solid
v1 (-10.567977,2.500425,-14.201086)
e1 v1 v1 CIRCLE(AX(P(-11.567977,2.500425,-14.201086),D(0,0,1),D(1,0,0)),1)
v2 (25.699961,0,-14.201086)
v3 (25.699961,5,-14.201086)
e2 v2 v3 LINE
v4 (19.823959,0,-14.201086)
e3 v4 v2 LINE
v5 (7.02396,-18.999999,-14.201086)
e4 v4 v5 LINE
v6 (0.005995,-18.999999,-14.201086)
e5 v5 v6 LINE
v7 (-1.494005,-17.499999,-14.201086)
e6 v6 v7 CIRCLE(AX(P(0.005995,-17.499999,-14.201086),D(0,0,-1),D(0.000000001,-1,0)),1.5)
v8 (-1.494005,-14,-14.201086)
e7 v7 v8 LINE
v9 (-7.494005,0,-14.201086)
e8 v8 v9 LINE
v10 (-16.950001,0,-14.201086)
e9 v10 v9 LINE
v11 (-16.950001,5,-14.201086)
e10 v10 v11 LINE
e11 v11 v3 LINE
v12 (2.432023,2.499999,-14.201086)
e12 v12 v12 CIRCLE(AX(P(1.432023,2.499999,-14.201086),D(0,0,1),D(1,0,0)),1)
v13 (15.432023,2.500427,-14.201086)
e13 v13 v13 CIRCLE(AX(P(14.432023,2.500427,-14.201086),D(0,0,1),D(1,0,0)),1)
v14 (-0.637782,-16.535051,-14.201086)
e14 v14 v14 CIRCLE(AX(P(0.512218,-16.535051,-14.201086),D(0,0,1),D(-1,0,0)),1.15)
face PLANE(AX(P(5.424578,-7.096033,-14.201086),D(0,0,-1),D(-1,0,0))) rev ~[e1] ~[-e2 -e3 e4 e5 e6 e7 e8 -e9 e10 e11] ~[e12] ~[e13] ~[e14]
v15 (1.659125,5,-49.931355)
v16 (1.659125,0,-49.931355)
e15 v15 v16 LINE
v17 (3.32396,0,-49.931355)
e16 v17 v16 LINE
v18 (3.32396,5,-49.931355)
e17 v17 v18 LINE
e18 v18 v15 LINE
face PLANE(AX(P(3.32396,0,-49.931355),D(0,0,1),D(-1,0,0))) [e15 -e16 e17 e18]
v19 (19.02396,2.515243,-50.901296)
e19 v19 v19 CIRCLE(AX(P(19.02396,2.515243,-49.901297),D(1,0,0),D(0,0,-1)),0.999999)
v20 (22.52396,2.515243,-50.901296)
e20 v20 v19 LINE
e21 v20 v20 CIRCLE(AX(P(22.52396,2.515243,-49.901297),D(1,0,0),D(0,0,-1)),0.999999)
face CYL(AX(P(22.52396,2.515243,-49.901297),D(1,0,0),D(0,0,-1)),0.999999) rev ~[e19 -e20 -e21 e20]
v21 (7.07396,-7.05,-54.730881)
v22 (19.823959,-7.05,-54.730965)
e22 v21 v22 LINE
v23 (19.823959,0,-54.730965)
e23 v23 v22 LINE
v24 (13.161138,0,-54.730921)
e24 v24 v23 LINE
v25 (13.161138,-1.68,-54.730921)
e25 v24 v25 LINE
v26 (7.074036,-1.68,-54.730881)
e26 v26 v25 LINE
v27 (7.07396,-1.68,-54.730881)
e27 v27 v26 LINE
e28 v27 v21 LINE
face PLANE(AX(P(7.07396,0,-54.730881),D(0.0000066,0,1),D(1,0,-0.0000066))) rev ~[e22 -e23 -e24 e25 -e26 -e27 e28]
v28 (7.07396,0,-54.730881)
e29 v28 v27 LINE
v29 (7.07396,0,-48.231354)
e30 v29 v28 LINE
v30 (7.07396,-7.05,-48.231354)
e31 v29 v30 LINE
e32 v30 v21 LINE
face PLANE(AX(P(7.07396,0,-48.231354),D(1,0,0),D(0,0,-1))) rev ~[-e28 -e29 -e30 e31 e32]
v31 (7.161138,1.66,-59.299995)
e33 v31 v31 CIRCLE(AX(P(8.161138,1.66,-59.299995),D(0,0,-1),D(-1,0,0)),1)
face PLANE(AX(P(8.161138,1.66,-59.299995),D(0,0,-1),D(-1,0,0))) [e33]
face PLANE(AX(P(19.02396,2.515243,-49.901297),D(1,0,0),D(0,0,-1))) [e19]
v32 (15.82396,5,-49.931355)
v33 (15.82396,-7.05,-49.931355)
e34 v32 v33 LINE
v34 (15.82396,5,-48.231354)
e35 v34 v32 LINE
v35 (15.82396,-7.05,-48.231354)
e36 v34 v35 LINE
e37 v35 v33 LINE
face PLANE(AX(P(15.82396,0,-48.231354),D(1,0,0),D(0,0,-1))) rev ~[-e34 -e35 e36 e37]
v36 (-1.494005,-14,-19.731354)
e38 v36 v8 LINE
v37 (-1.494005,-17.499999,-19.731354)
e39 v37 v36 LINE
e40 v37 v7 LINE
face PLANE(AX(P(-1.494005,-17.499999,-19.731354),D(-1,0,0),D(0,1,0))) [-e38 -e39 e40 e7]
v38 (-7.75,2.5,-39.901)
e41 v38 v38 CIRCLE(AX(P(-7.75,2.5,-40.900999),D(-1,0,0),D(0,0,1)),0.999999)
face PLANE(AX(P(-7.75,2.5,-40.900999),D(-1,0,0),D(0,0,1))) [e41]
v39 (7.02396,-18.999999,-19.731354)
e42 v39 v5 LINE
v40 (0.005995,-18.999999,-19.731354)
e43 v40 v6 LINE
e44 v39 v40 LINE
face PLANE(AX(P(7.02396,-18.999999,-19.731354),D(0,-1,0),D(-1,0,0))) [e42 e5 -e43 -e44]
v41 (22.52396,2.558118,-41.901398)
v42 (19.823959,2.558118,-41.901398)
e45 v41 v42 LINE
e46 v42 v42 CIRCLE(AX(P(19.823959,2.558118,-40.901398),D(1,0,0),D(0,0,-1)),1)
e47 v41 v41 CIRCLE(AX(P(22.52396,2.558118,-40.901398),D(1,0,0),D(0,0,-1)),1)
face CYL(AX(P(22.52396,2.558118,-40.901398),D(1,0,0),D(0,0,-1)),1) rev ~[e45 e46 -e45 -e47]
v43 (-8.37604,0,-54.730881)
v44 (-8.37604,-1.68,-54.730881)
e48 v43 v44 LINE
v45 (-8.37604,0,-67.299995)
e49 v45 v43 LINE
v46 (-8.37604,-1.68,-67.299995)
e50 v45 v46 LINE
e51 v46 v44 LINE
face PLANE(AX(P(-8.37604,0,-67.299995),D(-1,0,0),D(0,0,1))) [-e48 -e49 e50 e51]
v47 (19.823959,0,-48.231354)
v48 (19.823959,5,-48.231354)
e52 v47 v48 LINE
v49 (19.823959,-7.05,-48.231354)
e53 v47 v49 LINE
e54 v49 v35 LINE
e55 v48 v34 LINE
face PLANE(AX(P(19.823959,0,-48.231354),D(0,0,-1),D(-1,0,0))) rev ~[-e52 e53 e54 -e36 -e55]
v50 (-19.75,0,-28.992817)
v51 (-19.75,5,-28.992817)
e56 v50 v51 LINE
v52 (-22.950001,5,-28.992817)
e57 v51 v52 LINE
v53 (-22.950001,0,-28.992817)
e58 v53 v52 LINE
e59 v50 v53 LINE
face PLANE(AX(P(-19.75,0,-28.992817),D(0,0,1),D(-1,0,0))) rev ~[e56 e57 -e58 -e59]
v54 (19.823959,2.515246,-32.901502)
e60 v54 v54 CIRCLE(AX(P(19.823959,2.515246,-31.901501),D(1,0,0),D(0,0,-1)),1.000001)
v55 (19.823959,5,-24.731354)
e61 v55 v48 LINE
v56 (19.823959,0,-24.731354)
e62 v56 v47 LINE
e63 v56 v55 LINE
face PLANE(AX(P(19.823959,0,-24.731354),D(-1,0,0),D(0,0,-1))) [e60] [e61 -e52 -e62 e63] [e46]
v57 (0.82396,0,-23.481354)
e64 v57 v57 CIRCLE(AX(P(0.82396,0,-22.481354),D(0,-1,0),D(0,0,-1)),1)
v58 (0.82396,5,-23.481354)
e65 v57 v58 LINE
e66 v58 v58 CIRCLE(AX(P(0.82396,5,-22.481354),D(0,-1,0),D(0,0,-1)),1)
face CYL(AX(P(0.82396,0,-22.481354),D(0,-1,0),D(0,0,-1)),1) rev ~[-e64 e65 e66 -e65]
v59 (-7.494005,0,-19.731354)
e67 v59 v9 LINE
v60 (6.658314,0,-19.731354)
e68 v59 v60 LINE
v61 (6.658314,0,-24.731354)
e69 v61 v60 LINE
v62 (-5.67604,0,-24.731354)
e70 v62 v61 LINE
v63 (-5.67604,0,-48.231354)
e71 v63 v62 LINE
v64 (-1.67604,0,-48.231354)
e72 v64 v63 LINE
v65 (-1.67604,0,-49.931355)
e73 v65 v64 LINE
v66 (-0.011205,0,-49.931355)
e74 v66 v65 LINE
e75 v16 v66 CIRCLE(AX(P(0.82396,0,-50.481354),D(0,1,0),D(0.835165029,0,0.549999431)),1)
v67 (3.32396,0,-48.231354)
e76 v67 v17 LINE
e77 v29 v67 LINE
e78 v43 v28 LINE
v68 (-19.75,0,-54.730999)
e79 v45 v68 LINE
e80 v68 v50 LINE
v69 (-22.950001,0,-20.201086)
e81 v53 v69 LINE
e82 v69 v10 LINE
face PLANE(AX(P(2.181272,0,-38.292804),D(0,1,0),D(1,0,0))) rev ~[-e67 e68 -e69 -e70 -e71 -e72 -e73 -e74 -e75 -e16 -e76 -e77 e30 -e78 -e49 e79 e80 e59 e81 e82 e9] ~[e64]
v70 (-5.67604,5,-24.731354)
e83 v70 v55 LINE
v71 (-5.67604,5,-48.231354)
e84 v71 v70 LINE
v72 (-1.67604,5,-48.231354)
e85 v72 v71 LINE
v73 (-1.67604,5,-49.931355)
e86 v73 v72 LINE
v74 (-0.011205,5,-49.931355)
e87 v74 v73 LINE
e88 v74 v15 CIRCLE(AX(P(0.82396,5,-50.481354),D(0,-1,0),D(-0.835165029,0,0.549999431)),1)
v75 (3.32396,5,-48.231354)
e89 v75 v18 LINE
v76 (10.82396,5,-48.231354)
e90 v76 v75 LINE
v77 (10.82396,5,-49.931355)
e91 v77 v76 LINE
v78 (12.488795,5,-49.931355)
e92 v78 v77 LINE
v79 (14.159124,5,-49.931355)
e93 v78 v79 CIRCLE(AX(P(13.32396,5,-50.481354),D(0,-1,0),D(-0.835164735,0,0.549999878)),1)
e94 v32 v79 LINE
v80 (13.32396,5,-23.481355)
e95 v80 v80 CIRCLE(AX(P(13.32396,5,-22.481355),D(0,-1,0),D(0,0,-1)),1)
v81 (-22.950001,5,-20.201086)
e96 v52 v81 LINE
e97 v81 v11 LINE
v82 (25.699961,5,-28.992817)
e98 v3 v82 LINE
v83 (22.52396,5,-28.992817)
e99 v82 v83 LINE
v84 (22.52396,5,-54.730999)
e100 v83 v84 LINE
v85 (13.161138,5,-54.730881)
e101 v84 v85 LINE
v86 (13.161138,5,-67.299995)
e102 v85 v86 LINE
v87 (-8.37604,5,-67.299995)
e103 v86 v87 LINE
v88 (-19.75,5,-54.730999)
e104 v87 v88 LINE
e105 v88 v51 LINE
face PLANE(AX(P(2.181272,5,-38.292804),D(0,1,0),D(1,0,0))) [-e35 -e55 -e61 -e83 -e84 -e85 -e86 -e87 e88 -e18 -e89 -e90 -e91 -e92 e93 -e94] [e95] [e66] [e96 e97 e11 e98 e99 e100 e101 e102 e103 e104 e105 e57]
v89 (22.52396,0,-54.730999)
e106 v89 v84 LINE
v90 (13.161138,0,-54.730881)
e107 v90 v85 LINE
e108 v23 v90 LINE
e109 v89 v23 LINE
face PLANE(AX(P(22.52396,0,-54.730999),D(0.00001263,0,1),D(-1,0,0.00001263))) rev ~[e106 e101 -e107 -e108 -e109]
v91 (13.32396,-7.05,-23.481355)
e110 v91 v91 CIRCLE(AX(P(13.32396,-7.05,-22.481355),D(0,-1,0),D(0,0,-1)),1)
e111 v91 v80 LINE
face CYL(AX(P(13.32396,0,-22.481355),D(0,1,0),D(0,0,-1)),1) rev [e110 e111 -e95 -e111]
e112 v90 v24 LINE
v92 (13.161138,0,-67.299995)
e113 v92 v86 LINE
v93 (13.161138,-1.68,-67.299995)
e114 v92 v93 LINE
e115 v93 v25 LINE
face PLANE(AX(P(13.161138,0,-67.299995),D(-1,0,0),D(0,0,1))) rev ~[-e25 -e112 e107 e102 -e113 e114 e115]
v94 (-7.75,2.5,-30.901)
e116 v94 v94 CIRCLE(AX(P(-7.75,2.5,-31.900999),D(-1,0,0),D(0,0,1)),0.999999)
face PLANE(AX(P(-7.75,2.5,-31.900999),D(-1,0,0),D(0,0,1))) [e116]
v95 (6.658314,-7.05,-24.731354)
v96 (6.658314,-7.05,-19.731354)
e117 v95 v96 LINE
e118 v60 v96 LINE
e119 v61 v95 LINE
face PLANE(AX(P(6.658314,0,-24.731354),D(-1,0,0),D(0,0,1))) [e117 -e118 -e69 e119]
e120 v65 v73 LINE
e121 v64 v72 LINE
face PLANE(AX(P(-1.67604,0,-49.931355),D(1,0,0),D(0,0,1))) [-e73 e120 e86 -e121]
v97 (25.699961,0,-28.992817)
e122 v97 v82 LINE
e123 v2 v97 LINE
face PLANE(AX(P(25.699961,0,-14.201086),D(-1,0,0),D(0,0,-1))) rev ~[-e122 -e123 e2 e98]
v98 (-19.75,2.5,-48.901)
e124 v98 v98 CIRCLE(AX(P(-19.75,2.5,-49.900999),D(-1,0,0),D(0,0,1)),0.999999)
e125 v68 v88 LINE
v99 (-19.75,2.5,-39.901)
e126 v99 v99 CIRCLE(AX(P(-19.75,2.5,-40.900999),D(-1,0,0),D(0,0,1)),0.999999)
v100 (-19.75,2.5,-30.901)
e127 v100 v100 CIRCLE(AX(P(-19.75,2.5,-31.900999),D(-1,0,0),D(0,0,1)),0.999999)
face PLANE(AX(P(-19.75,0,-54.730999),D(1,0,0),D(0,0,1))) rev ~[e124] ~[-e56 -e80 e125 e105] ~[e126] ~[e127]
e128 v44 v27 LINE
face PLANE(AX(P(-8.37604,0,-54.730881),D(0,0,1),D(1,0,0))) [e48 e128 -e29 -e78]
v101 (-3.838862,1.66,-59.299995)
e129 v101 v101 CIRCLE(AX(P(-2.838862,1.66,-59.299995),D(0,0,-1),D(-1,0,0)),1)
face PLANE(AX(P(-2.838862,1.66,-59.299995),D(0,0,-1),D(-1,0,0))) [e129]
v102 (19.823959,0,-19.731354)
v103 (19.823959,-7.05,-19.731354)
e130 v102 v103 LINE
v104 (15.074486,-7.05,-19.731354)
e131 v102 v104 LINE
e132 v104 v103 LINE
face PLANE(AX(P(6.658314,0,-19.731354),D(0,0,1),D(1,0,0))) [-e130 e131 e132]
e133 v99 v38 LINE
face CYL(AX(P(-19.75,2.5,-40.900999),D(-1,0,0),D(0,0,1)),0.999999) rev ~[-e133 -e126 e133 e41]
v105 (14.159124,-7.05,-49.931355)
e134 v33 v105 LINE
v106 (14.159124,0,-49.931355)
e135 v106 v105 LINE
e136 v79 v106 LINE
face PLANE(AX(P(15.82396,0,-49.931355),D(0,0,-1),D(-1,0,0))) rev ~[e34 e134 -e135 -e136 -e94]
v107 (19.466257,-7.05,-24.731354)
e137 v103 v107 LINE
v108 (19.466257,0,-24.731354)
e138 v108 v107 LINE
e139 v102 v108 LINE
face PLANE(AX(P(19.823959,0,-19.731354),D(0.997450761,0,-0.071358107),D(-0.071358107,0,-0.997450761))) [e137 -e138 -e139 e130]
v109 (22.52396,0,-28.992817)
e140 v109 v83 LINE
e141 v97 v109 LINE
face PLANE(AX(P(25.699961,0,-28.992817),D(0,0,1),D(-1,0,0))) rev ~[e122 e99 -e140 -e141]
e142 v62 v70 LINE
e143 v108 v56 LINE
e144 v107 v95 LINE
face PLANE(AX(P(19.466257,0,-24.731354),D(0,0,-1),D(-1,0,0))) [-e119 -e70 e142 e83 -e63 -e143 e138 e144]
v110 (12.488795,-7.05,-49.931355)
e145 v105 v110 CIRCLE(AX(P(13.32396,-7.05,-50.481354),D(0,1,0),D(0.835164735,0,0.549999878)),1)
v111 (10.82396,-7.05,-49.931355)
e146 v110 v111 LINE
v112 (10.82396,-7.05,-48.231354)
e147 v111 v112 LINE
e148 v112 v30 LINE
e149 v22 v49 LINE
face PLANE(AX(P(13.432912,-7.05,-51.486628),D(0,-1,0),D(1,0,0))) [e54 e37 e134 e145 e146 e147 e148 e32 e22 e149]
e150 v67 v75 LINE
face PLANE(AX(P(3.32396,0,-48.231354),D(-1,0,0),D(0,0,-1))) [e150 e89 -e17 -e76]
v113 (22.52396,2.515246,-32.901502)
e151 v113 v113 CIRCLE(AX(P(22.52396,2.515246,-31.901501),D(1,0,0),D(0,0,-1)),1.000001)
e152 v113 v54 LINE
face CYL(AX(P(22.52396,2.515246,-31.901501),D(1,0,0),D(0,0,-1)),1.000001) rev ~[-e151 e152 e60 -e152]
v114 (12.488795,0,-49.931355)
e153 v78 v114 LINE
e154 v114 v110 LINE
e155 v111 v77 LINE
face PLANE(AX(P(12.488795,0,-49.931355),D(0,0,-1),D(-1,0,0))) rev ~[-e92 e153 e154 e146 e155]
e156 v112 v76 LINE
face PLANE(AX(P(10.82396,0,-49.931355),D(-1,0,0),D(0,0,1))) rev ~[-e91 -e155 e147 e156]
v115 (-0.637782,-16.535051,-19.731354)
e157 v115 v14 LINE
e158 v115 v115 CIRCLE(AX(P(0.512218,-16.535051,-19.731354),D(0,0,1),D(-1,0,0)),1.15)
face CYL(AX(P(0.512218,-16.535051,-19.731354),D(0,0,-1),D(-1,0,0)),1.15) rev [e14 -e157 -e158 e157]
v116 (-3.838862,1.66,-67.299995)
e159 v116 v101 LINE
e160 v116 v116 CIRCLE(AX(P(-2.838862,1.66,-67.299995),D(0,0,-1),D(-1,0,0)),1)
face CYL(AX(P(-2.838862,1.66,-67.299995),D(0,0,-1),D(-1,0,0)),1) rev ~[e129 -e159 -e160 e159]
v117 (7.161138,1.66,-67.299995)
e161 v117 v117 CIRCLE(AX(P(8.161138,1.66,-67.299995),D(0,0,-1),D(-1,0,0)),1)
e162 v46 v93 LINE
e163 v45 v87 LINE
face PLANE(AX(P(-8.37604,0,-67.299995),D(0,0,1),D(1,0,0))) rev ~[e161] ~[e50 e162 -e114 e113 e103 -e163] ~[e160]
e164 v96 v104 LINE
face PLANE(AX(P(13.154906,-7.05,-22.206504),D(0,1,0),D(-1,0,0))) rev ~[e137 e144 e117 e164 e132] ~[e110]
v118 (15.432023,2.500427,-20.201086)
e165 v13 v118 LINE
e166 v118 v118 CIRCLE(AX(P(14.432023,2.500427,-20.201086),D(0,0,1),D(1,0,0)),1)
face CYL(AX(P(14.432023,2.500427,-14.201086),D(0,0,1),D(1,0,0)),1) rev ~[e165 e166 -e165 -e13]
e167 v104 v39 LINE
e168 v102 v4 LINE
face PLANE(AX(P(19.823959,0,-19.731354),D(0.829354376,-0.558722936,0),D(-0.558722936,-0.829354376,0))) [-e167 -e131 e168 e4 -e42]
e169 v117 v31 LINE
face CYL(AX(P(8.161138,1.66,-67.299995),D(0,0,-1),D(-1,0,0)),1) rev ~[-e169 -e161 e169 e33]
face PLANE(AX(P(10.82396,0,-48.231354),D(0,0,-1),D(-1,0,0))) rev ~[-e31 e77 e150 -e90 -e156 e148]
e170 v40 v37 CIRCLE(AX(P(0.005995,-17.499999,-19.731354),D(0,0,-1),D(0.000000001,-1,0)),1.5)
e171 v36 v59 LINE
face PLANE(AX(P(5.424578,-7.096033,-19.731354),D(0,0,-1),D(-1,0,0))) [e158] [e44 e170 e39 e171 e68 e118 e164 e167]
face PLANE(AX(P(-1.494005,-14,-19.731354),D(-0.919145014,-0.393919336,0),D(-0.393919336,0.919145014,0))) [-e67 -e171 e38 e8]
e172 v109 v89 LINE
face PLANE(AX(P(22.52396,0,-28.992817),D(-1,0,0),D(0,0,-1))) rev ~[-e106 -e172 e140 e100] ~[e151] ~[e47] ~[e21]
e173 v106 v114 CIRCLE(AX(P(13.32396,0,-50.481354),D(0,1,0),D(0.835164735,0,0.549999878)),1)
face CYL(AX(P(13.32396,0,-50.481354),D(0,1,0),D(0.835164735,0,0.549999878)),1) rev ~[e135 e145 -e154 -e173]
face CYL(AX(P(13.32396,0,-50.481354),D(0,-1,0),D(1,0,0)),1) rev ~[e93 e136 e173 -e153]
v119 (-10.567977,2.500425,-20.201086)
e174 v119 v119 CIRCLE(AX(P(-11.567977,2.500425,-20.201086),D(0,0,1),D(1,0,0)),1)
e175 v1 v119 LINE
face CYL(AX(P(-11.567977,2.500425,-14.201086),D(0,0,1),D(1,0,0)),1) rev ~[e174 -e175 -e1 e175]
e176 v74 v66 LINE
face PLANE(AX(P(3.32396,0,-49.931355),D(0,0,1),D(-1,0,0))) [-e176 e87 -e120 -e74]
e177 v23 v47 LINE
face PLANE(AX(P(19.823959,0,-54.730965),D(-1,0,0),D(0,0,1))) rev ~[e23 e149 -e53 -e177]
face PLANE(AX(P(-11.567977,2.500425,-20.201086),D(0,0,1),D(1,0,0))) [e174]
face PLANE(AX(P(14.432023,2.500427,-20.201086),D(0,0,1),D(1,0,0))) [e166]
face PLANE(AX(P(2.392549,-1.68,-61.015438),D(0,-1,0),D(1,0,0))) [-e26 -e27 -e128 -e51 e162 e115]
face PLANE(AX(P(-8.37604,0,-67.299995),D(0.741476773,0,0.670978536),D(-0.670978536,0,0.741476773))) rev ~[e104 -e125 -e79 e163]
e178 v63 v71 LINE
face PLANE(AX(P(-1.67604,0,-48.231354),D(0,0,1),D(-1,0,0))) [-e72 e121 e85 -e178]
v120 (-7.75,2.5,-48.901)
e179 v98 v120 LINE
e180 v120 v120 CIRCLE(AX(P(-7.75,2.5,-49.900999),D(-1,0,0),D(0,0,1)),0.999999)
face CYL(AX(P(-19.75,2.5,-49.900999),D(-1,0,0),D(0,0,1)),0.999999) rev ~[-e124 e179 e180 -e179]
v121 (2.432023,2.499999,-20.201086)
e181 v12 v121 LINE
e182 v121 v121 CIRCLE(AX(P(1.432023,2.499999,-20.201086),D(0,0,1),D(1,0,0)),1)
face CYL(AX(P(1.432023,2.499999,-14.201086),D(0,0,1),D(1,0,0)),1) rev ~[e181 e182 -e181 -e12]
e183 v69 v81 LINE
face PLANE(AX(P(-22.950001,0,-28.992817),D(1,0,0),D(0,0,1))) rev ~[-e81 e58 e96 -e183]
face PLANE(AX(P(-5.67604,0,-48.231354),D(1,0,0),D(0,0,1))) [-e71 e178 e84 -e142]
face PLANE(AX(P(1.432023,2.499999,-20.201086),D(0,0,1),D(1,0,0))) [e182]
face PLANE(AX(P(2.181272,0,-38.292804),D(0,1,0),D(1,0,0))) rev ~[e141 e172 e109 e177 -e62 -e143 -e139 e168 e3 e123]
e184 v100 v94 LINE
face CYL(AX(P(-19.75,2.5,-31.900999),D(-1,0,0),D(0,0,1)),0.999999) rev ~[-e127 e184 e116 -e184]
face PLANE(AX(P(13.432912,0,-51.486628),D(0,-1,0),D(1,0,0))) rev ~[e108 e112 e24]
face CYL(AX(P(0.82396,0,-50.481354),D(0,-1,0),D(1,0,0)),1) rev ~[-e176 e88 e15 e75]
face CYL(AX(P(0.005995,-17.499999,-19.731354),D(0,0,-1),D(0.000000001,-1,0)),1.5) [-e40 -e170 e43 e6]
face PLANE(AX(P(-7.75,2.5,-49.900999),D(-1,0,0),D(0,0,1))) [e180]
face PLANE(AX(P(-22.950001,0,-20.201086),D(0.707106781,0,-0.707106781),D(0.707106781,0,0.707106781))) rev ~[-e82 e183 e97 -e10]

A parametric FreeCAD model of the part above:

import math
import FreeCAD as App
import Part
import Sketcher
Q = App.Units.Quantity

doc = App.newDocument("Part")
body = doc.addObject("PartDesign::Body", "Body")

sketch1 = body.newObject("Sketcher::SketchObject", "Sketch")
sketch1.AttachmentSupport = (doc.getObject("XZ_Plane"), [""])
sketch1.MapMode = "FlatFace"
sketch1.addGeometry(Part.LineSegment(App.Vector(-17, -14.2, 0), App.Vector(25.7, -14.2, 0)), False)
sketch1.addGeometry(Part.LineSegment(App.Vector(25.7, -14.2, 0), App.Vector(25.7, -29, 0)), False)
sketch1.addGeometry(Part.LineSegment(App.Vector(25.7, -29, 0), App.Vector(22.5, -29, 0)), False)
sketch1.addGeometry(Part.LineSegment(App.Vector(22.5, -29, 0), App.Vector(22.5, -54.7, 0)), False)
sketch1.addGeometry(Part.LineSegment(App.Vector(22.5, -54.7, 0), App.Vector(13.2, -54.7, 0)), False)
sketch1.addGeometry(Part.LineSegment(App.Vector(13.2, -54.7, 0), App.Vector(13.2, -67.3, 0)), False)
sketch1.addGeometry(Part.LineSegment(App.Vector(13.2, -67.3, 0), App.Vector(-8.4, -67.3, 0)), False)
sketch1.addGeometry(Part.LineSegment(App.Vector(-8.4, -67.3, 0), App.Vector(-19.8, -54.7, 0)), False)
sketch1.addGeometry(Part.LineSegment(App.Vector(-19.8, -54.7, 0), App.Vector(-19.8, -29, 0)), False)
sketch1.addGeometry(Part.LineSegment(App.Vector(-19.8, -29, 0), App.Vector(-23, -29, 0)), False)
sketch1.addGeometry(Part.LineSegment(App.Vector(-23, -29, 0), App.Vector(-23, -20.2, 0)), False)
sketch1.addGeometry(Part.LineSegment(App.Vector(-23, -20.2, 0), App.Vector(-17, -14.2, 0)), False)
sketch1.addConstraint(Sketcher.Constraint("Coincident", 0, 2, 1, 1))
sketch1.addConstraint(Sketcher.Constraint("Coincident", 1, 2, 2, 1))
sketch1.addConstraint(Sketcher.Constraint("Coincident", 2, 2, 3, 1))
sketch1.addConstraint(Sketcher.Constraint("Coincident", 3, 2, 4, 1))
sketch1.addConstraint(Sketcher.Constraint("Coincident", 4, 2, 5, 1))
sketch1.addConstraint(Sketcher.Constraint("Coincident", 5, 2, 6, 1))
sketch1.addConstraint(Sketcher.Constraint("Coincident", 6, 2, 7, 1))
sketch1.addConstraint(Sketcher.Constraint("Coincident", 7, 2, 8, 1))
sketch1.addConstraint(Sketcher.Constraint("Coincident", 8, 2, 9, 1))
sketch1.addConstraint(Sketcher.Constraint("Coincident", 9, 2, 10, 1))
sketch1.addConstraint(Sketcher.Constraint("Coincident", 10, 2, 11, 1))
sketch1.addConstraint(Sketcher.Constraint("Coincident", 11, 2, 0, 1))
sketch1.addConstraint(Sketcher.Constraint("Horizontal", 0))
sketch1.addConstraint(Sketcher.Constraint("Vertical", 1))
sketch1.addConstraint(Sketcher.Constraint("Horizontal", 2))
sketch1.addConstraint(Sketcher.Constraint("Vertical", 3))
sketch1.addConstraint(Sketcher.Constraint("Vertical", 5))
sketch1.addConstraint(Sketcher.Constraint("Horizontal", 6))
sketch1.addConstraint(Sketcher.Constraint("Vertical", 8))
sketch1.addConstraint(Sketcher.Constraint("Horizontal", 9))
sketch1.addConstraint(Sketcher.Constraint("Vertical", 10))
sketch1.addConstraint(Sketcher.Constraint("Horizontal", 3, 2, 7, 2))
sketch1.addConstraint(Sketcher.Constraint("Horizontal", 2, 2, 8, 2))
sketch1.addConstraint(Sketcher.Constraint("Angle", 11, Q("45 deg")))
sketch1.addConstraint(Sketcher.Constraint("DistanceX", 9, 2, 9, 1, 3.200001))
sketch1.addConstraint(Sketcher.Constraint("DistanceY", 10, 2, 0, 2, 6.0))
sketch1.addConstraint(Sketcher.Constraint("DistanceX", 6, 2, 3, 2, 30.900001))
sketch1.addConstraint(Sketcher.Constraint("DistanceX", 2, 2, 2, 1, 3.176001))
sketch1.addConstraint(Sketcher.Constraint("DistanceX", 7, 2, -1, 1, 19.75))
sketch1.addConstraint(Sketcher.Constraint("DistanceY", 3, 2, -1, 1, 54.730999))
sketch1.addConstraint(Sketcher.Constraint("Distance", 7, 16.951302))
sketch1.addConstraint(Sketcher.Constraint("DistanceX", 0, 1, 0, 2, 42.649961))
sketch1.addConstraint(Sketcher.Constraint("DistanceX", 6, 2, 6, 1, 21.537178))
sketch1.addConstraint(Sketcher.Constraint("DistanceY", 1, 2, 1, 1, 14.791731))
sketch1.addConstraint(Sketcher.Constraint("DistanceY", 3, 2, 3, 1, 25.738182))
sketch1.addConstraint(Sketcher.Constraint("DistanceY", 5, 2, 5, 1, 12.569115))
pad1 = body.newObject("PartDesign::Pad", "Pad")
pad1.Profile = sketch1
pad1.Length = 5
pad1.Reversed = True

sketch2 = body.newObject("Sketcher::SketchObject", "Sketch001")
sketch2.AttachmentSupport = (doc.getObject("XZ_Plane"), [""])
sketch2.MapMode = "FlatFace"
sketch2.addGeometry(Part.Circle(App.Vector(0.8, -22.5, 0), App.Vector(0, 0, 1), 1), False)
sketch2.addGeometry(Part.Circle(App.Vector(13.3, -22.5, 0), App.Vector(0, 0, 1), 1), False)
sketch2.addGeometry(Part.LineSegment(App.Vector(19.8, -24.7, 0), App.Vector(-5.7, -24.7, 0)), False)
sketch2.addGeometry(Part.LineSegment(App.Vector(-5.7, -24.7, 0), App.Vector(-5.7, -48.2, 0)), False)
sketch2.addGeometry(Part.LineSegment(App.Vector(-5.7, -48.2, 0), App.Vector(-1.7, -48.2, 0)), False)
sketch2.addGeometry(Part.LineSegment(App.Vector(-1.7, -48.2, 0), App.Vector(-1.7, -49.9, 0)), False)
sketch2.addGeometry(Part.LineSegment(App.Vector(-1.7, -49.9, 0), App.Vector(3.3, -49.9, 0)), False)
sketch2.addGeometry(Part.LineSegment(App.Vector(3.3, -49.9, 0), App.Vector(3.3, -48.2, 0)), False)
sketch2.addGeometry(Part.LineSegment(App.Vector(3.3, -48.2, 0), App.Vector(10.8, -48.2, 0)), False)
sketch2.addGeometry(Part.LineSegment(App.Vector(10.8, -48.2, 0), App.Vector(10.8, -49.9, 0)), False)
sketch2.addGeometry(Part.LineSegment(App.Vector(10.8, -49.9, 0), App.Vector(15.8, -49.9, 0)), False)
sketch2.addGeometry(Part.LineSegment(App.Vector(15.8, -49.9, 0), App.Vector(15.8, -48.2, 0)), False)
sketch2.addGeometry(Part.LineSegment(App.Vector(15.8, -48.2, 0), App.Vector(19.8, -48.2, 0)), False)
sketch2.addGeometry(Part.LineSegment(App.Vector(19.8, -48.2, 0), App.Vector(19.8, -24.7, 0)), False)
sketch2.addConstraint(Sketcher.Constraint("Coincident", 2, 2, 3, 1))
sketch2.addConstraint(Sketcher.Constraint("Coincident", 3, 2, 4, 1))
sketch2.addConstraint(Sketcher.Constraint("Coincident", 4, 2, 5, 1))
sketch2.addConstraint(Sketcher.Constraint("Coincident", 5, 2, 6, 1))
sketch2.addConstraint(Sketcher.Constraint("Coincident", 6, 2, 7, 1))
sketch2.addConstraint(Sketcher.Constraint("Coincident", 7, 2, 8, 1))
sketch2.addConstraint(Sketcher.Constraint("Coincident", 8, 2, 9, 1))
sketch2.addConstraint(Sketcher.Constraint("Coincident", 9, 2, 10, 1))
sketch2.addConstraint(Sketcher.Constraint("Coincident", 10, 2, 11, 1))
sketch2.addConstraint(Sketcher.Constraint("Coincident", 11, 2, 12, 1))
sketch2.addConstraint(Sketcher.Constraint("Coincident", 12, 2, 13, 1))
sketch2.addConstraint(Sketcher.Constraint("Coincident", 13, 2, 2, 1))
sketch2.addConstraint(Sketcher.Constraint("Horizontal", 2))
sketch2.addConstraint(Sketcher.Constraint("Vertical", 3))
sketch2.addConstraint(Sketcher.Constraint("Horizontal", 4))
sketch2.addConstraint(Sketcher.Constraint("Vertical", 5))
sketch2.addConstraint(Sketcher.Constraint("Horizontal", 6))
sketch2.addConstraint(Sketcher.Constraint("Vertical", 7))
sketch2.addConstraint(Sketcher.Constraint("Horizontal", 8))
sketch2.addConstraint(Sketcher.Constraint("Vertical", 9))
sketch2.addConstraint(Sketcher.Constraint("Horizontal", 10))
sketch2.addConstraint(Sketcher.Constraint("Vertical", 11))
sketch2.addConstraint(Sketcher.Constraint("Horizontal", 12))
sketch2.addConstraint(Sketcher.Constraint("Vertical", 13))
sketch2.addConstraint(Sketcher.Constraint("Equal", 0, 1))
sketch2.addConstraint(Sketcher.Constraint("Horizontal", 0, 3, 1, 3))
sketch2.addConstraint(Sketcher.Constraint("Horizontal", 4, 2, 7, 2))
sketch2.addConstraint(Sketcher.Constraint("Horizontal", 6, 2, 9, 2))
sketch2.addConstraint(Sketcher.Constraint("Horizontal", 8, 2, 11, 2))
sketch2.addConstraint(Sketcher.Constraint("Equal", 6, 10))
sketch2.addConstraint(Sketcher.Constraint("Equal", 4, 12))
sketch2.addConstraint(Sketcher.Constraint("Diameter", 0, 2.0))
sketch2.addConstraint(Sketcher.Constraint("DistanceX", 4, 1, 4, 2, 4.0))
sketch2.addConstraint(Sketcher.Constraint("DistanceX", 6, 1, 6, 2, 5.0))
sketch2.addConstraint(Sketcher.Constraint("DistanceX", 2, 2, 2, 1, 25.5))
sketch2.addConstraint(Sketcher.Constraint("DistanceY", 3, 2, 3, 1, 23.5))
sketch2.addConstraint(Sketcher.Constraint("DistanceY", 5, 2, 5, 1, 1.700001))
sketch2.addConstraint(Sketcher.Constraint("DistanceX", 2, 2, 1, 3, 19.0))
sketch2.addConstraint(Sketcher.Constraint("DistanceX", 0, 3, 13, 2, 18.999999))
sketch2.addConstraint(Sketcher.Constraint("DistanceY", 2, 2, 0, 3, 2.249999))
sketch2.addConstraint(Sketcher.Constraint("DistanceX", -1, 1, 0, 3, 0.82396))
sketch2.addConstraint(Sketcher.Constraint("DistanceY", 0, 3, -1, 1, 22.481354))
pocket1 = body.newObject("PartDesign::Pocket", "Pocket")
pocket1.Profile = sketch2
pocket1.Length = 5

sketch3 = body.newObject("Sketcher::SketchObject", "Sketch002")
sketch3.AttachmentSupport = (doc.getObject("XZ_Plane"), [""])
sketch3.MapMode = "FlatFace"
sketch3.addGeometry(Part.Circle(App.Vector(0.8, -50.5, 0), App.Vector(0, 0, 1), 1), False)
sketch3.addGeometry(Part.Circle(App.Vector(13.3, -50.5, 0), App.Vector(0, 0, 1), 1), False)
sketch3.addConstraint(Sketcher.Constraint("Equal", 0, 1))
sketch3.addConstraint(Sketcher.Constraint("Horizontal", 0, 3, 1, 3))
sketch3.addConstraint(Sketcher.Constraint("Diameter", 0, 2.000001))
sketch3.addConstraint(Sketcher.Constraint("DistanceX", 0, 3, 1, 3, 12.5))
sketch3.addConstraint(Sketcher.Constraint("DistanceX", -1, 1, 0, 3, 0.82396))
sketch3.addConstraint(Sketcher.Constraint("DistanceY", 0, 3, -1, 1, 50.481354))
pocket2 = body.newObject("PartDesign::Pocket", "Pocket001")
pocket2.Profile = sketch3
pocket2.Length = 5

sketch4 = body.newObject("Sketcher::SketchObject", "Sketch003")
sketch4.AttachmentSupport = (doc.getObject("XY_Plane"), [""])
sketch4.MapMode = "FlatFace"
sketch4.AttachmentOffset = App.Placement(App.Vector(0, 0, -14.201086), App.Rotation())
sketch4.addGeometry(Part.Circle(App.Vector(1.4, 2.5, 0), App.Vector(0, 0, 1), 1), False)
sketch4.addGeometry(Part.Circle(App.Vector(14.4, 2.5, 0), App.Vector(0, 0, 1), 1), False)
sketch4.addGeometry(Part.Circle(App.Vector(-11.6, 2.5, 0), App.Vector(0, 0, 1), 1), False)
sketch4.addConstraint(Sketcher.Constraint("Equal", 0, 1))
sketch4.addConstraint(Sketcher.Constraint("Equal", 1, 2))
sketch4.addConstraint(Sketcher.Constraint("Horizontal", 1, 3, 2, 3))
sketch4.addConstraint(Sketcher.Constraint("Diameter", 0, 2.0))
sketch4.addConstraint(Sketcher.Constraint("DistanceX", 0, 3, 1, 3, 13.0))
sketch4.addConstraint(Sketcher.Constraint("DistanceX", 2, 3, 0, 3, 13.0))
sketch4.addConstraint(Sketcher.Constraint("DistanceY", -1, 1, 0, 3, 2.499999))
sketch4.addConstraint(Sketcher.Constraint("DistanceX", -1, 1, 0, 3, 1.432023))
sketch4.addConstraint(Sketcher.Constraint("DistanceY", -1, 1, 1, 3, 2.500427))
pocket3 = body.newObject("PartDesign::Pocket", "Pocket002")
pocket3.Profile = sketch4
pocket3.Length = 6

sketch5 = body.newObject("Sketcher::SketchObject", "Sketch004")
sketch5.AttachmentSupport = (doc.getObject("YZ_Plane"), [""])
sketch5.MapMode = "FlatFace"
sketch5.AttachmentOffset = App.Placement(App.Vector(0, 0, 22.52396), App.Rotation())
sketch5.addGeometry(Part.Circle(App.Vector(2.5, -31.9, 0), App.Vector(0, 0, 1), 1), False)
sketch5.addGeometry(Part.Circle(App.Vector(2.6, -40.9, 0), App.Vector(0, 0, 1), 1), False)
sketch5.addGeometry(Part.Circle(App.Vector(2.5, -49.9, 0), App.Vector(0, 0, 1), 1), False)
sketch5.addConstraint(Sketcher.Constraint("Equal", 0, 1))
sketch5.addConstraint(Sketcher.Constraint("Equal", 1, 2))
sketch5.addConstraint(Sketcher.Constraint("Diameter", 0, 2.000001))
sketch5.addConstraint(Sketcher.Constraint("DistanceY", 0, 3, -1, 1, 31.901501))
sketch5.addConstraint(Sketcher.Constraint("DistanceY", 2, 3, 1, 3, 8.9999))
sketch5.addConstraint(Sketcher.Constraint("DistanceX", -1, 1, 1, 3, 2.558118))
sketch5.addConstraint(Sketcher.Constraint("DistanceX", 0, 3, 1, 3, 0.042872))
sketch5.addConstraint(Sketcher.Constraint("DistanceY", 1, 3, -1, 1, 40.901398))
sketch5.addConstraint(Sketcher.Constraint("DistanceX", -1, 1, 2, 3, 2.515243))
pocket4 = body.newObject("PartDesign::Pocket", "Pocket003")
pocket4.Profile = sketch5
pocket4.Length = 3.5

sketch6 = body.newObject("Sketcher::SketchObject", "Sketch005")
sketch6.AttachmentSupport = (doc.getObject("YZ_Plane"), [""])
sketch6.MapMode = "FlatFace"
sketch6.AttachmentOffset = App.Placement(App.Vector(0, 0, -19.75), App.Rotation())
sketch6.addGeometry(Part.Circle(App.Vector(2.5, -31.9, 0), App.Vector(0, 0, 1), 1), False)
sketch6.addGeometry(Part.Circle(App.Vector(2.5, -40.9, 0), App.Vector(0, 0, 1), 1), False)
sketch6.addGeometry(Part.Circle(App.Vector(2.5, -49.9, 0), App.Vector(0, 0, 1), 1), False)
sketch6.addConstraint(Sketcher.Constraint("Equal", 0, 1))
sketch6.addConstraint(Sketcher.Constraint("Equal", 1, 2))
sketch6.addConstraint(Sketcher.Constraint("Vertical", 0, 3, 1, 3))
sketch6.addConstraint(Sketcher.Constraint("Vertical", 1, 3, 2, 3))
sketch6.addConstraint(Sketcher.Constraint("DistanceY", 1, 3, 0, 3, 9.0))
sketch6.addConstraint(Sketcher.Constraint("DistanceY", 2, 3, 1, 3, 9.0))
sketch6.addConstraint(Sketcher.Constraint("DistanceX", -1, 1, 0, 3, 2.5))
sketch6.addConstraint(Sketcher.Constraint("Diameter", 0, 1.999997))
sketch6.addConstraint(Sketcher.Constraint("DistanceY", 0, 3, -1, 1, 31.900999))
pocket5 = body.newObject("PartDesign::Pocket", "Pocket004")
pocket5.Profile = sketch6
pocket5.Length = 12
pocket5.Reversed = True
body2 = doc.addObject("PartDesign::Body", "Body001")

sketch7 = body2.newObject("Sketcher::SketchObject", "Sketch006")
sketch7.AttachmentSupport = (doc.getObject("XZ_Plane001"), [""])
sketch7.MapMode = "FlatFace"
sketch7.addGeometry(Part.LineSegment(App.Vector(7.1, -48.2, 0), App.Vector(7.1, -54.7, 0)), False)
sketch7.addGeometry(Part.LineSegment(App.Vector(7.1, -54.7, 0), App.Vector(19.8, -54.7, 0)), False)
sketch7.addGeometry(Part.LineSegment(App.Vector(19.8, -54.7, 0), App.Vector(19.8, -48.2, 0)), False)
sketch7.addGeometry(Part.LineSegment(App.Vector(19.8, -48.2, 0), App.Vector(15.8, -48.2, 0)), False)
sketch7.addGeometry(Part.LineSegment(App.Vector(15.8, -48.2, 0), App.Vector(15.8, -49.9, 0)), False)
sketch7.addGeometry(Part.LineSegment(App.Vector(15.8, -49.9, 0), App.Vector(14.2, -49.9, 0)), False)
sketch7.addGeometry(Part.ArcOfCircle(Part.Circle(App.Vector(13.3, -50.5, 0), App.Vector(0, 0, 1), 1), math.radians(147), math.radians(393)), False)
sketch7.addGeometry(Part.LineSegment(App.Vector(12.5, -49.9, 0), App.Vector(10.8, -49.9, 0)), False)
sketch7.addGeometry(Part.LineSegment(App.Vector(10.8, -49.9, 0), App.Vector(10.8, -48.2, 0)), False)
sketch7.addGeometry(Part.LineSegment(App.Vector(10.8, -48.2, 0), App.Vector(7.1, -48.2, 0)), False)
sketch7.addConstraint(Sketcher.Constraint("Coincident", 0, 2, 1, 1))
sketch7.addConstraint(Sketcher.Constraint("Coincident", 1, 2, 2, 1))
sketch7.addConstraint(Sketcher.Constraint("Coincident", 2, 2, 3, 1))
sketch7.addConstraint(Sketcher.Constraint("Coincident", 3, 2, 4, 1))
sketch7.addConstraint(Sketcher.Constraint("Coincident", 4, 2, 5, 1))
sketch7.addConstraint(Sketcher.Constraint("Coincident", 5, 2, 6, 2))
sketch7.addConstraint(Sketcher.Constraint("Coincident", 6, 1, 7, 1))
sketch7.addConstraint(Sketcher.Constraint("Coincident", 7, 2, 8, 1))
sketch7.addConstraint(Sketcher.Constraint("Coincident", 8, 2, 9, 1))
sketch7.addConstraint(Sketcher.Constraint("Coincident", 9, 2, 0, 1))
sketch7.addConstraint(Sketcher.Constraint("Vertical", 0))
sketch7.addConstraint(Sketcher.Constraint("Vertical", 2))
sketch7.addConstraint(Sketcher.Constraint("Horizontal", 3))
sketch7.addConstraint(Sketcher.Constraint("Vertical", 4))
sketch7.addConstraint(Sketcher.Constraint("Horizontal", 5))
sketch7.addConstraint(Sketcher.Constraint("Horizontal", 7))
sketch7.addConstraint(Sketcher.Constraint("Vertical", 8))
sketch7.addConstraint(Sketcher.Constraint("Horizontal", 9))
sketch7.addConstraint(Sketcher.Constraint("Horizontal", 5, 2, 6, 1))
sketch7.addConstraint(Sketcher.Constraint("Horizontal", 3, 2, 8, 2))
sketch7.addConstraint(Sketcher.Constraint("Equal", 5, 7))
sketch7.addConstraint(Sketcher.Constraint("Radius", 6, 1.0))
sketch7.addConstraint(Sketcher.Constraint("DistanceX", 3, 2, 3, 1, 3.999999))
sketch7.addConstraint(Sketcher.Constraint("DistanceY", 4, 2, 4, 1, 1.700001))
sketch7.addConstraint(Sketcher.Constraint("DistanceX", 7, 2, 4, 2, 5.0))
sketch7.addConstraint(Sketcher.Constraint("DistanceX", 9, 2, 9, 1, 3.75))
sketch7.addConstraint(Sketcher.Constraint("DistanceY", 6, 3, 2, 2, 2.250001))
sketch7.addConstraint(Sketcher.Constraint("DistanceY", 2, 1, 2, 2, 6.499611))
sketch7.addConstraint(Sketcher.Constraint("DistanceY", 0, 2, 0, 1, 6.499527))
sketch7.addConstraint(Sketcher.Constraint("DistanceX", -1, 1, 6, 3, 13.32396))
sketch7.addConstraint(Sketcher.Constraint("DistanceY", 0, 2, -1, 1, 54.730881))
pad2 = body2.newObject("PartDesign::Pad", "Pad001")
pad2.Profile = sketch7
pad2.Length = 7.05
body3 = doc.addObject("PartDesign::Body", "Body002")

sketch8 = body3.newObject("Sketcher::SketchObject", "Sketch007")
sketch8.AttachmentSupport = (doc.getObject("XZ_Plane002"), [""])
sketch8.MapMode = "FlatFace"
sketch8.addGeometry(Part.LineSegment(App.Vector(6.7, -19.7, 0), App.Vector(6.7, -24.7, 0)), False)
sketch8.addGeometry(Part.LineSegment(App.Vector(6.7, -24.7, 0), App.Vector(19.5, -24.7, 0)), False)
sketch8.addGeometry(Part.LineSegment(App.Vector(19.5, -24.7, 0), App.Vector(19.8, -19.7, 0)), False)
sketch8.addGeometry(Part.LineSegment(App.Vector(19.8, -19.7, 0), App.Vector(6.7, -19.7, 0)), False)
sketch8.addGeometry(Part.Circle(App.Vector(13.3, -22.5, 0), App.Vector(0, 0, 1), 1), False)
sketch8.addConstraint(Sketcher.Constraint("Coincident", 0, 2, 1, 1))
sketch8.addConstraint(Sketcher.Constraint("Coincident", 1, 2, 2, 1))
sketch8.addConstraint(Sketcher.Constraint("Coincident", 2, 2, 3, 1))
sketch8.addConstraint(Sketcher.Constraint("Coincident", 3, 2, 0, 1))
sketch8.addConstraint(Sketcher.Constraint("Vertical", 0))
sketch8.addConstraint(Sketcher.Constraint("Horizontal", 1))
sketch8.addConstraint(Sketcher.Constraint("Horizontal", 3))
sketch8.addConstraint(Sketcher.Constraint("Diameter", 4, 2.0))
sketch8.addConstraint(Sketcher.Constraint("DistanceY", 0, 2, 0, 1, 5.0))
sketch8.addConstraint(Sketcher.Constraint("DistanceX", 4, 3, 2, 2, 6.5))
sketch8.addConstraint(Sketcher.Constraint("DistanceY", 0, 2, 4, 3, 2.249999))
sketch8.addConstraint(Sketcher.Constraint("Distance", 2, 5.012779))
sketch8.addConstraint(Sketcher.Constraint("DistanceX", 1, 1, 1, 2, 12.807943))
sketch8.addConstraint(Sketcher.Constraint("DistanceX", -1, 1, 4, 3, 13.32396))
sketch8.addConstraint(Sketcher.Constraint("DistanceY", 4, 3, -1, 1, 22.481355))
pad3 = body3.newObject("PartDesign::Pad", "Pad002")
pad3.Profile = sketch8
pad3.Length = 7.05
doc.recompute()

boolean = body.newObject("PartDesign::Boolean", "Boolean")
boolean.Type = "Fuse"
boolean.addObjects([body2])

sketch9 = body.newObject("Sketcher::SketchObject", "Sketch008")
sketch9.AttachmentSupport = (doc.getObject("XZ_Plane"), [""])
sketch9.MapMode = "FlatFace"
sketch9.addGeometry(Part.LineSegment(App.Vector(-8, -55, 0), App.Vector(-8, -67, 0)), False)
sketch9.addGeometry(Part.LineSegment(App.Vector(-8, -67, 0), App.Vector(13, -67, 0)), False)
sketch9.addGeometry(Part.LineSegment(App.Vector(13, -67, 0), App.Vector(13, -55, 0)), False)
sketch9.addGeometry(Part.LineSegment(App.Vector(13, -55, 0), App.Vector(-8, -55, 0)), False)
sketch9.addConstraint(Sketcher.Constraint("Coincident", 0, 2, 1, 1))
sketch9.addConstraint(Sketcher.Constraint("Coincident", 1, 2, 2, 1))
sketch9.addConstraint(Sketcher.Constraint("Coincident", 2, 2, 3, 1))
sketch9.addConstraint(Sketcher.Constraint("Coincident", 3, 2, 0, 1))
sketch9.addConstraint(Sketcher.Constraint("Vertical", 0))
sketch9.addConstraint(Sketcher.Constraint("Horizontal", 1))
sketch9.addConstraint(Sketcher.Constraint("Vertical", 2))
sketch9.addConstraint(Sketcher.Constraint("Horizontal", 3))
sketch9.addConstraint(Sketcher.Constraint("DistanceX", 1, 1, 1, 2, 21.537178))
sketch9.addConstraint(Sketcher.Constraint("DistanceY", 0, 2, 0, 1, 12.569115))
sketch9.addConstraint(Sketcher.Constraint("DistanceX", 0, 2, -1, 1, 8.37604))
sketch9.addConstraint(Sketcher.Constraint("DistanceY", 2, 2, -1, 1, 54.730881))
pad4 = body.newObject("PartDesign::Pad", "Pad003")
pad4.Profile = sketch9
pad4.Length = 1.68

sketch10 = body.newObject("Sketcher::SketchObject", "Sketch009")
sketch10.AttachmentSupport = (doc.getObject("XY_Plane"), [""])
sketch10.MapMode = "FlatFace"
sketch10.AttachmentOffset = App.Placement(App.Vector(0, 0, -67.299995), App.Rotation())
sketch10.addGeometry(Part.Circle(App.Vector(8.2, 1.7, 0), App.Vector(0, 0, 1), 1), False)
sketch10.addGeometry(Part.Circle(App.Vector(-2.8, 1.7, 0), App.Vector(0, 0, 1), 1), False)
sketch10.addConstraint(Sketcher.Constraint("Equal", 0, 1))
sketch10.addConstraint(Sketcher.Constraint("Horizontal", 0, 3, 1, 3))
sketch10.addConstraint(Sketcher.Constraint("Diameter", 0, 2.0))
sketch10.addConstraint(Sketcher.Constraint("DistanceX", 1, 3, 0, 3, 11.0))
sketch10.addConstraint(Sketcher.Constraint("DistanceY", -1, 1, 0, 3, 1.66))
sketch10.addConstraint(Sketcher.Constraint("DistanceX", -1, 1, 0, 3, 8.161138))
pocket6 = body.newObject("PartDesign::Pocket", "Pocket005")
pocket6.Profile = sketch10
pocket6.Length = 8
pocket6.Reversed = True
doc.recompute()

boolean2 = body.newObject("PartDesign::Boolean", "Boolean001")
boolean2.Type = "Fuse"
boolean2.addObjects([body3])

sketch11 = body.newObject("Sketcher::SketchObject", "Sketch010")
sketch11.AttachmentSupport = (doc.getObject("XY_Plane"), [""])
sketch11.MapMode = "FlatFace"
sketch11.AttachmentOffset = App.Placement(App.Vector(0, 0, -19.731354), App.Rotation())
sketch11.addGeometry(Part.LineSegment(App.Vector(19.8, 0, 0), App.Vector(-7.5, 0, 0)), False)
sketch11.addGeometry(Part.LineSegment(App.Vector(-7.5, 0, 0), App.Vector(-1.5, -14, 0)), False)
sketch11.addGeometry(Part.LineSegment(App.Vector(-1.5, -14, 0), App.Vector(-1.5, -17.5, 0)), False)
sketch11.addGeometry(Part.ArcOfCircle(Part.Circle(App.Vector(0, -17.5, 0), App.Vector(0, 0, 1), 1.5), math.radians(180), math.radians(270)), False)
sketch11.addGeometry(Part.LineSegment(App.Vector(0, -19, 0), App.Vector(7, -19, 0)), False)
sketch11.addGeometry(Part.LineSegment(App.Vector(7, -19, 0), App.Vector(19.8, 0, 0)), False)
sketch11.addGeometry(Part.Circle(App.Vector(0.5, -16.5, 0), App.Vector(0, 0, 1), 1.1), False)
sketch11.addConstraint(Sketcher.Constraint("Coincident", 0, 2, 1, 1))
sketch11.addConstraint(Sketcher.Constraint("Coincident", 1, 2, 2, 1))
sketch11.addConstraint(Sketcher.Constraint("Tangent", 2, 2, 3, 1))
sketch11.addConstraint(Sketcher.Constraint("Tangent", 3, 2, 4, 1))
sketch11.addConstraint(Sketcher.Constraint("Coincident", 4, 2, 5, 1))
sketch11.addConstraint(Sketcher.Constraint("Coincident", 5, 2, 0, 1))
sketch11.addConstraint(Sketcher.Constraint("Horizontal", 0))
sketch11.addConstraint(Sketcher.Constraint("Vertical", 2))
sketch11.addConstraint(Sketcher.Constraint("Horizontal", 4))
sketch11.addConstraint(Sketcher.Constraint("PointOnObject", 0, 2, -1))
sketch11.addConstraint(Sketcher.Constraint("Diameter", 6, 2.3))
sketch11.addConstraint(Sketcher.Constraint("Radius", 3, 1.5))
sketch11.addConstraint(Sketcher.Constraint("DistanceY", 2, 2, 2, 1, 3.5))
sketch11.addConstraint(Sketcher.Constraint("DistanceY", 1, 2, -1, 1, 14.0))
sketch11.addConstraint(Sketcher.Constraint("DistanceX", 0, 2, 1, 2, 6.0))
sketch11.addConstraint(Sketcher.Constraint("DistanceX", 4, 2, 5, 2, 12.799999))
sketch11.addConstraint(Sketcher.Constraint("DistanceX", 0, 2, 0, 1, 27.317965))
sketch11.addConstraint(Sketcher.Constraint("DistanceX", -1, 1, 6, 3, 0.512218))
sketch11.addConstraint(Sketcher.Constraint("DistanceY", 6, 3, -1, 1, 16.535051))
sketch11.addConstraint(Sketcher.Constraint("DistanceX", -1, 1, 4, 2, 7.02396))
pad5 = body.newObject("PartDesign::Pad", "Pad004")
pad5.Profile = sketch11
pad5.Length = 5.530268

doc.recompute()
